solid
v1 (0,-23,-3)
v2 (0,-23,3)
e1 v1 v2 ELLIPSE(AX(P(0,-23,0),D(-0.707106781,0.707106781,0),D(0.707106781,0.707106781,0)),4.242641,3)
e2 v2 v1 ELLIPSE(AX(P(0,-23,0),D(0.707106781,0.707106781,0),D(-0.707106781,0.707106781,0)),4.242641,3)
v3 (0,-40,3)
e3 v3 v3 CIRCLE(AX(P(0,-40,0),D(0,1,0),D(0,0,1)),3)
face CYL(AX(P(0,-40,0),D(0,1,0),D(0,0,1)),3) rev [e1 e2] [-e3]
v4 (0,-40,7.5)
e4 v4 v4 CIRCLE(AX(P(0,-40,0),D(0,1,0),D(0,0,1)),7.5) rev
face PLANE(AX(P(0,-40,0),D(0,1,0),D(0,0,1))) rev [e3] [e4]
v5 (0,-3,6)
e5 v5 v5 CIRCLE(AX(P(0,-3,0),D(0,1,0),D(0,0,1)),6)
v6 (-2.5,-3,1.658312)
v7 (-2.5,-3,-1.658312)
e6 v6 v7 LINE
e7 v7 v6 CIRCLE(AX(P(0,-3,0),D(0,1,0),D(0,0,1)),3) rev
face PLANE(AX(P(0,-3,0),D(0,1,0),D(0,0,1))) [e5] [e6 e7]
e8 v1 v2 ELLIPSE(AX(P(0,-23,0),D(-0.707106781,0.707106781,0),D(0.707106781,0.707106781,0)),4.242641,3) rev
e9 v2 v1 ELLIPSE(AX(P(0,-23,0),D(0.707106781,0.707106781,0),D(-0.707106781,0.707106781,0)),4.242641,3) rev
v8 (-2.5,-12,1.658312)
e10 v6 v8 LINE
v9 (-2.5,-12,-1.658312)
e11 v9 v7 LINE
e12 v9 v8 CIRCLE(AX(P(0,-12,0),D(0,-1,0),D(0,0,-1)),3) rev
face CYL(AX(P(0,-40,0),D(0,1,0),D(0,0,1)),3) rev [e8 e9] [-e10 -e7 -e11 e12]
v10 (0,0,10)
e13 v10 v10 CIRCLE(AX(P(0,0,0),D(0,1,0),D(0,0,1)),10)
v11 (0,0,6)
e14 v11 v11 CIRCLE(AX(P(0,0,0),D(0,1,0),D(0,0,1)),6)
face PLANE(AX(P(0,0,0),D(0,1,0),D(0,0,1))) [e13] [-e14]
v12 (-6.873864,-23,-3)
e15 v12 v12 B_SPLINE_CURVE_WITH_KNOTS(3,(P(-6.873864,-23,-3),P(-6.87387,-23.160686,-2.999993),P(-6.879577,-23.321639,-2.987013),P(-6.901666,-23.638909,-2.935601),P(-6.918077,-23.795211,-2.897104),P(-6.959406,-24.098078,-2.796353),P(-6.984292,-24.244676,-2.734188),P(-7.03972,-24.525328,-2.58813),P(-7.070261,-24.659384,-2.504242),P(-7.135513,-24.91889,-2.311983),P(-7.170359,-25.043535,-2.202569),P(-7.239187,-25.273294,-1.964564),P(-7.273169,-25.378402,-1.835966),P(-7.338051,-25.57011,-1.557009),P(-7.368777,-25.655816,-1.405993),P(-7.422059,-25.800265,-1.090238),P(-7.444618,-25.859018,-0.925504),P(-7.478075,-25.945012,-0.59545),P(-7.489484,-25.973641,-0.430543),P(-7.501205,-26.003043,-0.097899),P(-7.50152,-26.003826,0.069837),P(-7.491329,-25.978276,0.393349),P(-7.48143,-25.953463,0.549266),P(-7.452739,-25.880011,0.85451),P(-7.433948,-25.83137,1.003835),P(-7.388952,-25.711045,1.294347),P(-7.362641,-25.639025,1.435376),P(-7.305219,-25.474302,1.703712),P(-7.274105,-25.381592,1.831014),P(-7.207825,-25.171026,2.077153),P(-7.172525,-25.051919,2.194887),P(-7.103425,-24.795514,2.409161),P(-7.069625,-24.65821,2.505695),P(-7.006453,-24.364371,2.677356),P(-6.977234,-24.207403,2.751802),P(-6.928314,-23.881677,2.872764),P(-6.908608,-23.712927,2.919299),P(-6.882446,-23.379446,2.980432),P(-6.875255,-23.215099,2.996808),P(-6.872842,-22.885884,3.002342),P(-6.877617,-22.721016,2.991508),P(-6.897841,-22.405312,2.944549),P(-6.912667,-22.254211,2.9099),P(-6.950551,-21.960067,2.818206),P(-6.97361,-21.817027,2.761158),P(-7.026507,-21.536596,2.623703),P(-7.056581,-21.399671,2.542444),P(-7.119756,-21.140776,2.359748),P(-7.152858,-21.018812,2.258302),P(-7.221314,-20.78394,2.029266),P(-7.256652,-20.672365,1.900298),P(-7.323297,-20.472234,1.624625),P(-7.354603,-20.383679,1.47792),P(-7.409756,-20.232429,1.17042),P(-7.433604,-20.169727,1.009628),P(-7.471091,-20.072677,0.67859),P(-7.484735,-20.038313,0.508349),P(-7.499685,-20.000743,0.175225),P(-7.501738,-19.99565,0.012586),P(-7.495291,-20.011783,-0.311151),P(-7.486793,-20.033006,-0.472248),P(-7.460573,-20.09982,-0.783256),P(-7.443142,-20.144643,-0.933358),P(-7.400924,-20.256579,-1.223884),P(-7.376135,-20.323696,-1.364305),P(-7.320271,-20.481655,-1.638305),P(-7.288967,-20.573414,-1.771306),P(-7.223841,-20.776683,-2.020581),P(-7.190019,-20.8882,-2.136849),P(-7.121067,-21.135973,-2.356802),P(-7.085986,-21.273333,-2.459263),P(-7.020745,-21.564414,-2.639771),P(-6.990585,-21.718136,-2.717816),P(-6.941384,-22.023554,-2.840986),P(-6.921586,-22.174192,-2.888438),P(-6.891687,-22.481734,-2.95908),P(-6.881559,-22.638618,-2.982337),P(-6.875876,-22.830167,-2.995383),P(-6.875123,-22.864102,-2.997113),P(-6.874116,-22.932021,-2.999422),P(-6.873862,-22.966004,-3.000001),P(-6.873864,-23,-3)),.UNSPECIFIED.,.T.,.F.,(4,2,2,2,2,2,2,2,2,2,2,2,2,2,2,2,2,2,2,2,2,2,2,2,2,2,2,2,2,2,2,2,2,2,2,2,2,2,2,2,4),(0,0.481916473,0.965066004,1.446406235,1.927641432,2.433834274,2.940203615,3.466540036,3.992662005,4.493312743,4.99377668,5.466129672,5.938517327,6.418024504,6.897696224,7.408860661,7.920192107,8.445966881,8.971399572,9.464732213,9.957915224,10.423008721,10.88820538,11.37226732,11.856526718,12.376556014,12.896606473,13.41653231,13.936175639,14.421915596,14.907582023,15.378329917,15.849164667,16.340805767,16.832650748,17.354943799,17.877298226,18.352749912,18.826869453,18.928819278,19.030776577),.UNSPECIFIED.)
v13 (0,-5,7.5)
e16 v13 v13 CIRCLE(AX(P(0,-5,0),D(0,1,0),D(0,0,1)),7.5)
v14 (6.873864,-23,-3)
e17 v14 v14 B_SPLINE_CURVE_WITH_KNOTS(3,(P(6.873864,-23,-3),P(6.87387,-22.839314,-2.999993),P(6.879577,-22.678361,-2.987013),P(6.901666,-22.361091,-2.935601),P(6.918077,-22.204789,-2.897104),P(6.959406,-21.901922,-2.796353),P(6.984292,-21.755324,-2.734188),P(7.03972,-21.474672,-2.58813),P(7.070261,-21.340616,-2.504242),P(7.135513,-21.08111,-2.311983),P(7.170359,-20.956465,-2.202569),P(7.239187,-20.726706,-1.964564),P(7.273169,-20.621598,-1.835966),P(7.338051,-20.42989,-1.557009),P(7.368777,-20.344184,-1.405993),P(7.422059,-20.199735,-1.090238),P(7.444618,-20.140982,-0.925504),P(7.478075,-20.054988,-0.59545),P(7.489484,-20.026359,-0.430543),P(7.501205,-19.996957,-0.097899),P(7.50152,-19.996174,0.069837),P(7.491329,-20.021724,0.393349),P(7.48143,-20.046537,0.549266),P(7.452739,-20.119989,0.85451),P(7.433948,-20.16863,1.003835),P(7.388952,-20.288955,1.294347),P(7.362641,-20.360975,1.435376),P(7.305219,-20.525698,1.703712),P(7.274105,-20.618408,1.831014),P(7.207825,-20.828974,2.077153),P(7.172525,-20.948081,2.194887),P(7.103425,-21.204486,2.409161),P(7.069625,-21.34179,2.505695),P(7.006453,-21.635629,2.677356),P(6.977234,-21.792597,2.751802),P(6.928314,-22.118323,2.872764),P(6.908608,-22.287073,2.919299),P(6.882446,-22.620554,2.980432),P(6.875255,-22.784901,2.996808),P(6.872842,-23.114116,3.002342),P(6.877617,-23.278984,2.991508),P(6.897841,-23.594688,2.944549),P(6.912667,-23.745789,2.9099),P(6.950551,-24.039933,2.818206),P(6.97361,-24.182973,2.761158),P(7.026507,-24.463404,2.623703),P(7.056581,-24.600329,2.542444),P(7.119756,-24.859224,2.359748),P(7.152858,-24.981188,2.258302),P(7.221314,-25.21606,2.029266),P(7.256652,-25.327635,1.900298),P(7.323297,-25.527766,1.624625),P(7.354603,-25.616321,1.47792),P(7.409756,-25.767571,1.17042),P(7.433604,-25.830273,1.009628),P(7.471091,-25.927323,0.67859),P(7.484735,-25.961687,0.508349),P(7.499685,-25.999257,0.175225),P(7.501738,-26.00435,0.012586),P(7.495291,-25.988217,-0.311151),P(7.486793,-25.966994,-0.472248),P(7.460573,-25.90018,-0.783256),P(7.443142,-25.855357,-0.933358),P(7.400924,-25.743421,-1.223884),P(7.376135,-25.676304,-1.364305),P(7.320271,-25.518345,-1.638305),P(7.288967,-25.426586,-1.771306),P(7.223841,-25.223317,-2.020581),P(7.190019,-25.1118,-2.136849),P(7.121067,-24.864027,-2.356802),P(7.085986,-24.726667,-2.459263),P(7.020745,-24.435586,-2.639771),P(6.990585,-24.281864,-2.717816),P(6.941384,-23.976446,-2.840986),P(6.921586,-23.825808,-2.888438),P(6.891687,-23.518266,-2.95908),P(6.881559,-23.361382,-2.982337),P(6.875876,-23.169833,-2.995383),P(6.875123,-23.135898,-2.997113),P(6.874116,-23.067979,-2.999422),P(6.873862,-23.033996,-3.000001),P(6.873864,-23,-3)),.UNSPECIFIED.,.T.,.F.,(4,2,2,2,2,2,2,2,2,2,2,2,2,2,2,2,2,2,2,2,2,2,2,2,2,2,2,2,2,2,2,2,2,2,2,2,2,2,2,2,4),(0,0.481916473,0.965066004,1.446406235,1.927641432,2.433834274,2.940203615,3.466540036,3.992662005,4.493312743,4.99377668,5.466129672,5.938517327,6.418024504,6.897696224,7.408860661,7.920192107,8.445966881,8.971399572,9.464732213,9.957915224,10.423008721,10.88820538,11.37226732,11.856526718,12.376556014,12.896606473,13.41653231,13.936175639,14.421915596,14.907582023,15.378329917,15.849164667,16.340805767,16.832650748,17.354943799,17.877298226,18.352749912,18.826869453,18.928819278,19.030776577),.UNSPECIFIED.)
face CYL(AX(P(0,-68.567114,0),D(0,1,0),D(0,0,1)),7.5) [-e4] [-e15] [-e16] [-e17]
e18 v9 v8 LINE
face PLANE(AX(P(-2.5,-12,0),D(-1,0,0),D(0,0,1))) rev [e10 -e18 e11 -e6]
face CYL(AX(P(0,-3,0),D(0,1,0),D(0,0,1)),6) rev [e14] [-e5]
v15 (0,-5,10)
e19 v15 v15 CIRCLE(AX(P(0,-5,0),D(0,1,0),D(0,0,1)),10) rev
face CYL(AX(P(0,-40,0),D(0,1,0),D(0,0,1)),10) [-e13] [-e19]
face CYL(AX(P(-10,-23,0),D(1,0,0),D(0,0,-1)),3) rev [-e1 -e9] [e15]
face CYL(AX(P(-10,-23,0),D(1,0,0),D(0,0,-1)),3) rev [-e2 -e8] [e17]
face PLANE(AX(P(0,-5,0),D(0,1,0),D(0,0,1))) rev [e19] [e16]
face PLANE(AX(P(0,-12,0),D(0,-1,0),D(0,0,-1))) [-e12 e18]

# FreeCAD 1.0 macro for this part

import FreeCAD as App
import Part
import Sketcher

V = App.Vector
Q = App.Units.Quantity


def add_polygon(sketch, points):
    """Adds a closed chain of lines whose ends are joined by coincident constraints."""
    first, n = sketch.GeometryCount, len(points)
    for a, b in zip(points, points[1:] + points[:1]):
        sketch.addGeometry(Part.LineSegment(App.Vector(*a, 0), App.Vector(*b, 0)), False)
    for i in range(n):
        sketch.addConstraint(Sketcher.Constraint("Coincident", first + i, 2, first + (i + 1) % n, 1))

doc = App.newDocument("Part")
body = doc.addObject("PartDesign::Body", "Body")

sketch1 = body.newObject("Sketcher::SketchObject", "Sketch")
sketch1.AttachmentSupport = (doc.getObject("XZ_Plane"), [""])
sketch1.MapMode = "FlatFace"
sketch1.addGeometry(Part.Circle(V(0, 0, 0), V(0, 0, 1), 10), False)
sketch1.addConstraint([
    Sketcher.Constraint("Coincident", 0, 3, -1, 1),
    Sketcher.Constraint("Diameter", 0, Q("20 mm")),
])
pad1 = body.newObject("PartDesign::Pad", "Pad")
pad1.Profile = sketch1
pad1.Length = 40

sketch2 = body.newObject("Sketcher::SketchObject", "Sketch001")
sketch2.AttachmentSupport = (doc.getObject("XZ_Plane"), [""])
sketch2.MapMode = "FlatFace"
sketch2.AttachmentOffset = App.Placement(V(0, 0, 5), App.Rotation())
add_polygon(sketch2, [(-16, -16), (-16, 16), (16, 16), (16, -16)])
sketch2.addGeometry(Part.Circle(V(0, 0, 0), V(0, 0, 1), 8), False)
sketch2.addConstraint([
    Sketcher.Constraint("Vertical", 0),
    Sketcher.Constraint("Horizontal", 1),
    Sketcher.Constraint("Vertical", 2),
    Sketcher.Constraint("Horizontal", 3),
    Sketcher.Constraint("Coincident", 4, 3, -1, 1),
    Sketcher.Constraint("Symmetric", 0, 2, 2, 2, -1, 1),
    Sketcher.Constraint("Equal", 3, 0),
    Sketcher.Constraint("Diameter", 4, Q("15 mm")),
    Sketcher.Constraint("DistanceX", 1, 1, 1, 2, Q("31.798 mm")),
])
pocket1 = body.newObject("PartDesign::Pocket", "Pocket")
pocket1.Profile = sketch2
pocket1.Length = 35
pocket1.Reversed = True

sketch3 = body.newObject("Sketcher::SketchObject", "Sketch002")
sketch3.AttachmentSupport = (doc.getObject("XZ_Plane"), [""])
sketch3.MapMode = "FlatFace"
sketch3.addGeometry(Part.Circle(V(0, 0, 0), V(0, 0, 1), 3), False)
sketch3.addConstraint([
    Sketcher.Constraint("Coincident", 0, 3, -1, 1),
    Sketcher.Constraint("Diameter", 0, Q("6 mm")),
])
pocket2 = body.newObject("PartDesign::Pocket", "Pocket001")
pocket2.Profile = sketch3
pocket2.Type = "ThroughAll"
pocket2.Reversed = True

sketch4 = body.newObject("Sketcher::SketchObject", "Sketch003")
sketch4.AttachmentSupport = (doc.getObject("XZ_Plane"), [""])
sketch4.MapMode = "FlatFace"
add_polygon(sketch4, [(-4.5, -3), (-4.5, 3), (-2.5, 3), (-2.5, -3)])
sketch4.addConstraint([
    Sketcher.Constraint("Vertical", 0),
    Sketcher.Constraint("Horizontal", 1),
    Sketcher.Constraint("Vertical", 2),
    Sketcher.Constraint("Horizontal", 3),
    Sketcher.Constraint("DistanceX", 1, 1, 1, 2, Q("2 mm")),
    Sketcher.Constraint("DistanceY", 0, 1, 0, 2, Q("6 mm")),
    Sketcher.Constraint("DistanceY", -1, 1, 0, 2, Q("3 mm")),
    Sketcher.Constraint("DistanceX", 0, 2, -1, 1, Q("4.5 mm")),
])
pad2 = body.newObject("PartDesign::Pad", "Pad001")
pad2.Profile = sketch4
pad2.Length = 12

sketch5 = body.newObject("Sketcher::SketchObject", "Sketch004")
sketch5.AttachmentSupport = (doc.getObject("YZ_Plane"), [""])
sketch5.MapMode = "FlatFace"
sketch5.addGeometry(Part.Circle(V(-23, 0, 0), V(0, 0, 1), 3), False)
sketch5.addConstraint([
    Sketcher.Constraint("PointOnObject", 0, 3, -1),
    Sketcher.Constraint("Diameter", 0, Q("6 mm")),
    Sketcher.Constraint("DistanceX", 0, 3, -1, 1, Q("23 mm")),
])
pocket3 = body.newObject("PartDesign::Pocket", "Pocket002")
pocket3.Profile = sketch5
pocket3.Type = "ThroughAll"
pocket3.Midplane = True

sketch6 = body.newObject("Sketcher::SketchObject", "Sketch005")
sketch6.AttachmentSupport = (doc.getObject("XZ_Plane"), [""])
sketch6.MapMode = "FlatFace"
sketch6.addGeometry(Part.Circle(V(0, 0, 0), V(0, 0, 1), 6), False)
sketch6.addConstraint([
    Sketcher.Constraint("Coincident", 0, 3, -1, 1),
    Sketcher.Constraint("Diameter", 0, Q("12 mm")),
])
pocket4 = body.newObject("PartDesign::Pocket", "Pocket003")
pocket4.Profile = sketch6
pocket4.Length = 3
pocket4.Reversed = True

doc.recompute()
